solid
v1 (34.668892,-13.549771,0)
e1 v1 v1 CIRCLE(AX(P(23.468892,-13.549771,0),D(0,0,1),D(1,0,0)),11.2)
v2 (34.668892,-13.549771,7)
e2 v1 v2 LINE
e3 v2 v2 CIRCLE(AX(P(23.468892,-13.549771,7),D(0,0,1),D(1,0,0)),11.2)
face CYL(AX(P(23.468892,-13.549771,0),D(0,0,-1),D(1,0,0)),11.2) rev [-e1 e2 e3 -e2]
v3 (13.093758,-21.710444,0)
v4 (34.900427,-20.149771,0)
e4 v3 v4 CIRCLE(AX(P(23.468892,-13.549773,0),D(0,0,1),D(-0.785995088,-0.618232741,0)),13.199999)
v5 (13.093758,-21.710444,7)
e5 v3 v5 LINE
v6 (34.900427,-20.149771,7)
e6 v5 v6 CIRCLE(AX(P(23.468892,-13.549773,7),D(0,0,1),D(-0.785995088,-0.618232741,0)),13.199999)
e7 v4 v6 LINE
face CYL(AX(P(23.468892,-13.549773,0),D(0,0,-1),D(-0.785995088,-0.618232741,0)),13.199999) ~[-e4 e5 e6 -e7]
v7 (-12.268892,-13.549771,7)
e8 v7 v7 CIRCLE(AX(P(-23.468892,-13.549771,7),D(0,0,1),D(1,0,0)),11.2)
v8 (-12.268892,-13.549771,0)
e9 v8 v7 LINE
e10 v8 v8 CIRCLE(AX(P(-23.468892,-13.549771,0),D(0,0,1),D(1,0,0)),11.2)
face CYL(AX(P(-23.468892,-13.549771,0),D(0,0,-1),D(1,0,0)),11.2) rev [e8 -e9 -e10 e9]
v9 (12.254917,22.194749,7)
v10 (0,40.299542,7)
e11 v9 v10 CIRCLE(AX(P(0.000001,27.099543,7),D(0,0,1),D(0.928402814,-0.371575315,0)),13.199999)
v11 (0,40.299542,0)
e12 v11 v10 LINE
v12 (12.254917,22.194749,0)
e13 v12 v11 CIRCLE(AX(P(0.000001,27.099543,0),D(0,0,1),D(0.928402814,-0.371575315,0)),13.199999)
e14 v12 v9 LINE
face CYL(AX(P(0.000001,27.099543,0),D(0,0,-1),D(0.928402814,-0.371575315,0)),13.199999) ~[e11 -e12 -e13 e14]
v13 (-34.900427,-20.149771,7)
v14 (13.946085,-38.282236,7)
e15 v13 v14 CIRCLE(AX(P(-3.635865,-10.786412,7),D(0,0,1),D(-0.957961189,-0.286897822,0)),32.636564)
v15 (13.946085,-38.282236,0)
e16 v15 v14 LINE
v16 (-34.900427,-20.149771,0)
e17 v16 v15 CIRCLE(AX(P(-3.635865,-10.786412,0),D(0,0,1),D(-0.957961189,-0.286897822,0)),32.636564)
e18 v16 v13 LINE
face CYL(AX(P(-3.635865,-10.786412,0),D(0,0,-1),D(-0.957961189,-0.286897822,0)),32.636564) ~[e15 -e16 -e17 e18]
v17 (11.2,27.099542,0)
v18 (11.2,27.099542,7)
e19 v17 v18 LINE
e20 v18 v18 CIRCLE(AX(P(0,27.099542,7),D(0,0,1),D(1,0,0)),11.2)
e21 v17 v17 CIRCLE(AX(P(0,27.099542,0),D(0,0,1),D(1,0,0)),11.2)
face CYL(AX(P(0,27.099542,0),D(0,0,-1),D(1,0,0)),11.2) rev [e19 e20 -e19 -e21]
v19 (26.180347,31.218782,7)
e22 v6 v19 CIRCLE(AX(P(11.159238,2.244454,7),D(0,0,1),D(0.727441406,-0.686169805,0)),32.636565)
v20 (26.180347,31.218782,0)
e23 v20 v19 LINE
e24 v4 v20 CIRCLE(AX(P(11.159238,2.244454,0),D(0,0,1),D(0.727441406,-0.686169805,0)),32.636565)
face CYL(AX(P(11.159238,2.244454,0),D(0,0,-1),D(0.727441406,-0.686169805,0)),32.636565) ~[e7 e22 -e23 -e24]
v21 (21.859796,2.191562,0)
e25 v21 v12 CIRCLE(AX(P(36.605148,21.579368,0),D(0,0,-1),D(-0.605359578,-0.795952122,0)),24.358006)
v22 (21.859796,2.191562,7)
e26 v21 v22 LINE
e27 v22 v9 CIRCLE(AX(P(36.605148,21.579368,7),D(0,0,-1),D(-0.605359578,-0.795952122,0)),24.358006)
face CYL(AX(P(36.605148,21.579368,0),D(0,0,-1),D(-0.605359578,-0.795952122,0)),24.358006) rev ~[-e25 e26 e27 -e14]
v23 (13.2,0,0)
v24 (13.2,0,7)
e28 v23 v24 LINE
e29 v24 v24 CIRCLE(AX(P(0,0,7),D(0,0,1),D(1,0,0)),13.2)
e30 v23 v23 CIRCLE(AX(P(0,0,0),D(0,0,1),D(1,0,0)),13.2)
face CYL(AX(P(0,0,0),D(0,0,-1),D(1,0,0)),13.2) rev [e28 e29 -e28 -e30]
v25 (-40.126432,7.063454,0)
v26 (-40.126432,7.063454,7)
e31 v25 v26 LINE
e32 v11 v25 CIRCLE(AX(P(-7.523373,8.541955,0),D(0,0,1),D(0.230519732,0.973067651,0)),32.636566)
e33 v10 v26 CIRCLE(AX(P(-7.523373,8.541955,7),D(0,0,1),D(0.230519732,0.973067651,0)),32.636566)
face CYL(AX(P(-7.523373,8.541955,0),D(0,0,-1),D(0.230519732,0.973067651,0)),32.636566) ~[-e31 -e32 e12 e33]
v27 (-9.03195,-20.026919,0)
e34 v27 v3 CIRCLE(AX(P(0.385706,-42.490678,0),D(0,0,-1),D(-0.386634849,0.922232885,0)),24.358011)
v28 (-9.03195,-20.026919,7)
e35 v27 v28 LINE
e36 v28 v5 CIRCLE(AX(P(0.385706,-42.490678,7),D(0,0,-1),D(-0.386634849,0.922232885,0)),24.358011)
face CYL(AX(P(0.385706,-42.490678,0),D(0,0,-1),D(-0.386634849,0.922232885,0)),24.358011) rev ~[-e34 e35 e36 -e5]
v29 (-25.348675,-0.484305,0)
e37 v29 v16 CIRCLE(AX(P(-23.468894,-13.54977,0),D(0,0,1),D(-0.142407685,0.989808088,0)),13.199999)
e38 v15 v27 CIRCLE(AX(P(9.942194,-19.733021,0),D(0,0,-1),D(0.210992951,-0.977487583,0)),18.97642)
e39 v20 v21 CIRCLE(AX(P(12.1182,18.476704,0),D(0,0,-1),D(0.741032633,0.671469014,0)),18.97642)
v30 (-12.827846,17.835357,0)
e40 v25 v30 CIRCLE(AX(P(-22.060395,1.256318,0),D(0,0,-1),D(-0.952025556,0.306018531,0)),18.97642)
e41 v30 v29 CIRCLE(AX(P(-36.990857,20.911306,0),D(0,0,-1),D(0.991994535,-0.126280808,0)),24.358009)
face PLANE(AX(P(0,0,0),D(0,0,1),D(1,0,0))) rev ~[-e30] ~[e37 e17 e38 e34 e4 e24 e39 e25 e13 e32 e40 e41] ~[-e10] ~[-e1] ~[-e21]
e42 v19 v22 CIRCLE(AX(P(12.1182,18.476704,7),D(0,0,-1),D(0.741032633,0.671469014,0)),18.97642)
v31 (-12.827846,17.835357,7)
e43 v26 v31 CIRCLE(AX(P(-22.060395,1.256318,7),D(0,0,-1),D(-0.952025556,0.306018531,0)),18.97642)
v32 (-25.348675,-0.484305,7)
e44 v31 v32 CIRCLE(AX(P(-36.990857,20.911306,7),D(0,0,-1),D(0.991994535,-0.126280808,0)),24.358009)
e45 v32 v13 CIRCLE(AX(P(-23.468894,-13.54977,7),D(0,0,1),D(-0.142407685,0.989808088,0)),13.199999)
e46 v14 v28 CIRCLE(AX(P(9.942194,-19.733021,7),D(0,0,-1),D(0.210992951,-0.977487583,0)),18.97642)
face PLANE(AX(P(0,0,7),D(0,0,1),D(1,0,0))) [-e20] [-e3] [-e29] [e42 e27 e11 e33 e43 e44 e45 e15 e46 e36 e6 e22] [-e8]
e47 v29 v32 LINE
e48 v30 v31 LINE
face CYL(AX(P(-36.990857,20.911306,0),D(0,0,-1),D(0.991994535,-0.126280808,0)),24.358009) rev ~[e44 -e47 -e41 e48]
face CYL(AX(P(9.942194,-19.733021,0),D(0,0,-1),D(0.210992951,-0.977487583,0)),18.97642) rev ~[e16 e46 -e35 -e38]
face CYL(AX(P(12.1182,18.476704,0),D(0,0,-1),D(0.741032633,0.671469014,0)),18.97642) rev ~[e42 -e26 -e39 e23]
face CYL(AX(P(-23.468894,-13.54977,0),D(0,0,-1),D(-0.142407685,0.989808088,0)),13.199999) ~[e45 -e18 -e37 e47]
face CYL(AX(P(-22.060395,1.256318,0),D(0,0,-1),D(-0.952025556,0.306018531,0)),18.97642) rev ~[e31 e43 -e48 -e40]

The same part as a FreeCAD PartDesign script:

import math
import FreeCAD as App
import Part
import Sketcher
Q = App.Units.Quantity

doc = App.newDocument("Part")
params = doc.addObject("Spreadsheet::Sheet", "Params")
for row, (alias, value) in enumerate([
    ("sketch1_diameter", "22.4 mm"),
    ("sketch1_diameter2", "22.4 mm"),
    ("sketch1_diameter3", "26.4 mm"),
    ("sketch1_diameter4", "22.4 mm"),
    ("sketch1_radius", "13.199999 mm"),
    ("pad1_length", "7 mm"),
], start=1):
    params.set(f"A{row}", alias)
    params.set(f"B{row}", "=" + value)
    params.setAlias(f"B{row}", alias)

body = doc.addObject("PartDesign::Body", "Body")

# Sketch on XY plane
sketch1 = doc.addObject("Sketcher::SketchObject", "Sketch")
body.addObject(sketch1)
sketch1.AttachmentSupport = (doc.XY_Plane, [""])
sketch1.MapMode = "FlatFace"
sketch1.addGeometry([
    Part.ArcOfCircle(Part.Circle(App.Vector(36.605148, 21.579368, 0), App.Vector(0, 0, 1), 24.358006), math.radians(178.552326), math.radians(232.745279)),  # 0
    Part.ArcOfCircle(Part.Circle(App.Vector(0.000001, 27.099543, 0), App.Vector(0, 0, 1), 13.199999), math.radians(-21.812804), math.radians(90.000003)),  # 1
    Part.ArcOfCircle(Part.Circle(App.Vector(-7.523373, 8.541955, 0), App.Vector(0, 0, 1), 32.636566), math.radians(76.672328), math.radians(182.596501)),  # 2
    Part.ArcOfCircle(Part.Circle(App.Vector(-22.060395, 1.256318, 0), App.Vector(0, 0, 1), 18.97642), math.radians(60.887404), math.radians(162.180548)),  # 3
    Part.ArcOfCircle(Part.Circle(App.Vector(-36.990857, 20.911306, 0), App.Vector(0, 0, 1), 24.358009), math.radians(-61.447672), math.radians(-7.254727)),  # 4
    Part.ArcOfCircle(Part.Circle(App.Vector(-23.468894, -13.54977, 0), App.Vector(0, 0, 1), 13.199999), math.radians(98.187193), math.radians(210.000007)),  # 5
    Part.ArcOfCircle(Part.Circle(App.Vector(-3.635865, -10.786412, 0), App.Vector(0, 0, 1), 32.636564), math.radians(-163.327676), math.radians(-57.403495)),  # 6
    Part.ArcOfCircle(Part.Circle(App.Vector(9.942194, -19.733021, 0), App.Vector(0, 0, 1), 18.97642), math.radians(-179.112594), math.radians(-77.819452)),  # 7
    Part.ArcOfCircle(Part.Circle(App.Vector(0.385706, -42.490678, 0), App.Vector(0, 0, 1), 24.358011), math.radians(58.55233), math.radians(112.745271)),  # 8
    Part.ArcOfCircle(Part.Circle(App.Vector(23.468892, -13.549773, 0), App.Vector(0, 0, 1), 13.199999), math.radians(-141.812806), math.radians(-29.999995)),  # 9
    Part.ArcOfCircle(Part.Circle(App.Vector(11.159238, 2.244454, 0), App.Vector(0, 0, 1), 32.636565), math.radians(-43.327675), math.radians(62.596503)),  # 10
    Part.ArcOfCircle(Part.Circle(App.Vector(12.1182, 18.476704, 0), App.Vector(0, 0, 1), 18.97642), math.radians(-59.112593), math.radians(42.180546)),  # 11
    Part.Circle(App.Vector(-23.468892, -13.549771, 0), App.Vector(0, 0, 1), 11.2),  # 12
    Part.Circle(App.Vector(23.468892, -13.549771, 0), App.Vector(0, 0, 1), 11.2),  # 13
    Part.Circle(App.Vector(0, 0, 0), App.Vector(0, 0, 1), 13.2),  # 14
    Part.Circle(App.Vector(0, 27.099542, 0), App.Vector(0, 0, 1), 11.2),  # 15
], False)
sketch1.addConstraint([
    Sketcher.Constraint("Coincident", 0, 1, 1, 1),
    Sketcher.Constraint("Coincident", 1, 2, 2, 1),
    Sketcher.Constraint("Coincident", 2, 2, 3, 2),
    Sketcher.Constraint("Coincident", 3, 1, 4, 2),
    Sketcher.Constraint("Coincident", 4, 1, 5, 1),
    Sketcher.Constraint("Coincident", 5, 2, 6, 1),
    Sketcher.Constraint("Coincident", 6, 2, 7, 2),
    Sketcher.Constraint("Coincident", 7, 1, 8, 2),
    Sketcher.Constraint("Coincident", 8, 1, 9, 1),
    Sketcher.Constraint("Coincident", 9, 2, 10, 1),
    Sketcher.Constraint("Coincident", 10, 2, 11, 2),
    Sketcher.Constraint("Coincident", 11, 1, 0, 2),
    Sketcher.Constraint("Coincident", 14, 3, -1, 1),
    Sketcher.Constraint("Coincident", 12, 3, 5, 3),
    Sketcher.Constraint("Coincident", 13, 3, 9, 3),
    Sketcher.Constraint("Coincident", 15, 3, 1, 3),
    Sketcher.Constraint("PointOnObject", 1, 3, -2),
    Sketcher.Constraint("PointOnObject", 1, 2, -2),
    Sketcher.Constraint("Diameter", 12, Q("22.4 mm")),
    Sketcher.Constraint("Diameter", 13, Q("22.4 mm")),
    Sketcher.Constraint("Diameter", 14, Q("26.4 mm")),
    Sketcher.Constraint("Diameter", 15, Q("22.4 mm")),
    Sketcher.Constraint("Radius", 1, Q("13.199999 mm")),
    Sketcher.Constraint("Radius", 5, Q("13.199999 mm")),
    Sketcher.Constraint("Radius", 9, Q("13.199999 mm")),
    Sketcher.Constraint("DistanceY", 5, 2, 5, 3, Q("6.600001 mm")),
    Sketcher.Constraint("DistanceY", 9, 2, 9, 3, Q("6.599998 mm")),
    Sketcher.Constraint("Radius", 3, Q("18.97642 mm")),
    Sketcher.Constraint("Radius", 4, Q("24.358009 mm")),
    Sketcher.Constraint("Radius", 7, Q("18.97642 mm")),
    Sketcher.Constraint("Radius", 8, Q("24.358011 mm")),
    Sketcher.Constraint("Radius", 11, Q("18.97642 mm")),
    Sketcher.Constraint("Radius", 0, Q("24.358006 mm")),
    Sketcher.Constraint("Radius", 2, Q("32.636566 mm")),
    Sketcher.Constraint("Radius", 6, Q("32.636564 mm")),
    Sketcher.Constraint("Radius", 10, Q("32.636565 mm")),
    Sketcher.Constraint("DistanceX", -1, 1, 11, 3, Q("12.1182 mm")),
    Sketcher.Constraint("DistanceX", 5, 3, 3, 3, Q("1.408498 mm")),
    Sketcher.Constraint("DistanceX", 5, 3, 8, 3, Q("23.8546 mm")),
    Sketcher.Constraint("DistanceX", 7, 3, 9, 3, Q("13.526698 mm")),
    Sketcher.Constraint("DistanceY", 10, 3, 2, 3, Q("6.297501 mm")),
    Sketcher.Constraint("DistanceY", 2, 2, 2, 3, Q("1.478501 mm")),
    Sketcher.Constraint("DistanceY", 2, 3, 3, 1, Q("9.293402 mm")),
    Sketcher.Constraint("DistanceY", 7, 1, 7, 3, Q("0.293898 mm")),
    Sketcher.Constraint("DistanceX", 10, 2, 0, 3, Q("10.424801 mm")),
    Sketcher.Constraint("DistanceX", -1, 1, 0, 3, Q("36.605148 mm")),
    Sketcher.Constraint("DistanceY", -1, 1, 0, 3, Q("21.579368 mm")),
    Sketcher.Constraint("DistanceY", 5, 3, -1, 1, Q("13.54977 mm")),
    Sketcher.Constraint("DistanceY", 6, 3, -1, 1, Q("10.786412 mm")),
    Sketcher.Constraint("DistanceY", 7, 3, -1, 1, Q("19.733021 mm")),
    Sketcher.Constraint("DistanceX", -1, 1, 10, 3, Q("11.159238 mm")),
    Sketcher.Constraint("DistanceY", 13, 3, -1, 1, Q("13.549771 mm")),
    Sketcher.Constraint("DistanceY", -1, 1, 15, 3, Q("27.099542 mm")),
    Sketcher.Constraint("DistanceX", 2, 2, -1, 1, Q("40.126432 mm")),
    Sketcher.Constraint("DistanceY", 3, 3, 0, 3, Q("20.323051 mm")),
    Sketcher.Constraint("DistanceX", 4, 3, 3, 3, Q("14.930462 mm")),
])
sketch1.setExpression("Constraints[18]", "Params.sketch1_diameter")
sketch1.setExpression("Constraints[19]", "Params.sketch1_diameter2")
sketch1.setExpression("Constraints[20]", "Params.sketch1_diameter3")
sketch1.setExpression("Constraints[21]", "Params.sketch1_diameter4")
sketch1.setExpression("Constraints[22]", "Params.sketch1_radius")
pad1 = doc.addObject("PartDesign::Pad", "Pad")
body.addObject(pad1)
pad1.Profile = sketch1
pad1.setExpression("Length", "Params.pad1_length")

doc.recompute()
